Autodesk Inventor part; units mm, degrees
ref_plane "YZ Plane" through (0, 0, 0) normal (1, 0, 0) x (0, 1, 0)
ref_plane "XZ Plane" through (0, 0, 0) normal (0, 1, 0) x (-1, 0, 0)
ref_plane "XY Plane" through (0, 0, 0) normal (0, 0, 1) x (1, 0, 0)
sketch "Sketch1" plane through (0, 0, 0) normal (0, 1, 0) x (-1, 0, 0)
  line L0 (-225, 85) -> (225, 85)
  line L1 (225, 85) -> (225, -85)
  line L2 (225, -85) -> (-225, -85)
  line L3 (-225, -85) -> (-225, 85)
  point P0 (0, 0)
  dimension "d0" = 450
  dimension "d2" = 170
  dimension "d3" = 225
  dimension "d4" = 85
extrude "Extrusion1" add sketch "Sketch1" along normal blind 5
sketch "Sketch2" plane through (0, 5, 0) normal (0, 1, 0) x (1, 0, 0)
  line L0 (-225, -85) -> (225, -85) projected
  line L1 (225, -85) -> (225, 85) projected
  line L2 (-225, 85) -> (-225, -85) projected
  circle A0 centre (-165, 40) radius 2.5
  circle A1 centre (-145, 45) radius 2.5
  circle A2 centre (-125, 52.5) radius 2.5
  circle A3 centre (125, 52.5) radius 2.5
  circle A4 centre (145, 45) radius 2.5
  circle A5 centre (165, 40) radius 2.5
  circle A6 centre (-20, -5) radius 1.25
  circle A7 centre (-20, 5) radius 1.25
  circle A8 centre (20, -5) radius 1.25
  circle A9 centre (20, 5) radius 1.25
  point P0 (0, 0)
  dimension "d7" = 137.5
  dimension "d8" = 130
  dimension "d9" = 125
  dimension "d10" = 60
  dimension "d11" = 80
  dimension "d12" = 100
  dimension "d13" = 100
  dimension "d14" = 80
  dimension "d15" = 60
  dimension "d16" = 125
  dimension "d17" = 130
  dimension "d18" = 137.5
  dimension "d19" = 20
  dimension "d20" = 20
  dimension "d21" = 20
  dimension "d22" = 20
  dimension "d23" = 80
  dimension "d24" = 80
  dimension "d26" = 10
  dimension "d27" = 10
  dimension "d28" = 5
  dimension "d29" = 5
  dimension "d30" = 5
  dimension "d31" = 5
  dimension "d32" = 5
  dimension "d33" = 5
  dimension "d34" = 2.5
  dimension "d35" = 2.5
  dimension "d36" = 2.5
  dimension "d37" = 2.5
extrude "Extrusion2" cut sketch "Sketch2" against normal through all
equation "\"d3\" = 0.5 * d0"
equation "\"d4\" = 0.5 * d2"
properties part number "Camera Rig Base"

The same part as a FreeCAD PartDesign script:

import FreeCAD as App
import Part
import Sketcher
Q = App.Units.Quantity

doc = App.newDocument("Part")
params = doc.addObject("Spreadsheet::Sheet", "Params")
for row, (alias, value) in enumerate([
    ("sketch1_width", "450 mm"),
    ("sketch1_height", "170 mm"),
    ("pad1_length", "5 mm"),
    ("sketch2_diameter", "5 mm"),
    ("sketch2_diameter2", "2.5 mm"),
], start=1):
    params.set(f"A{row}", alias)
    params.set(f"B{row}", "=" + value)
    params.setAlias(f"B{row}", alias)

body = doc.addObject("PartDesign::Body", "Body")

sketch1 = body.newObject("Sketcher::SketchObject", "Sketch")
sketch1.AttachmentSupport = (doc.getObject("XZ_Plane"), [""])
sketch1.MapMode = "FlatFace"
sketch1.addGeometry([
    Part.LineSegment(App.Vector(-225, 85, 0), App.Vector(225, 85, 0)),
    Part.LineSegment(App.Vector(225, 85, 0), App.Vector(225, -85, 0)),
    Part.LineSegment(App.Vector(225, -85, 0), App.Vector(-225, -85, 0)),
    Part.LineSegment(App.Vector(-225, -85, 0), App.Vector(-225, 85, 0)),
], False)
sketch1.addConstraint([
    Sketcher.Constraint("Coincident", 0, 2, 1, 1),
    Sketcher.Constraint("Coincident", 1, 2, 2, 1),
    Sketcher.Constraint("Coincident", 2, 2, 3, 1),
    Sketcher.Constraint("Coincident", 3, 2, 0, 1),
    Sketcher.Constraint("Horizontal", 0),
    Sketcher.Constraint("Vertical", 1),
    Sketcher.Constraint("Horizontal", 2),
    Sketcher.Constraint("Vertical", 3),
    Sketcher.Constraint("Symmetric", 0, 2, 2, 2, -1, 1),
    Sketcher.Constraint("DistanceX", 0, 1, 0, 2, Q("450 mm")),
    Sketcher.Constraint("DistanceY", 1, 2, 1, 1, Q("170 mm")),
])
sketch1.setExpression("Constraints[9]", "Params.sketch1_width")
sketch1.setExpression("Constraints[10]", "Params.sketch1_height")
pad1 = body.newObject("PartDesign::Pad", "Pad")
pad1.Profile = sketch1
pad1.setExpression("Length", "Params.pad1_length")
pad1.Reversed = True

sketch2 = body.newObject("Sketcher::SketchObject", "Sketch001")
sketch2.AttachmentSupport = (doc.getObject("XZ_Plane"), [""])
sketch2.MapMode = "FlatFace"
sketch2.AttachmentOffset = App.Placement(App.Vector(0, 0, -5), App.Rotation())
sketch2.addGeometry([
    Part.Circle(App.Vector(-165, -40, 0), App.Vector(0, 0, 1), 2.5),
    Part.Circle(App.Vector(-145, -45, 0), App.Vector(0, 0, 1), 2.5),
    Part.Circle(App.Vector(-125, -52.5, 0), App.Vector(0, 0, 1), 2.5),
    Part.Circle(App.Vector(125, -52.5, 0), App.Vector(0, 0, 1), 2.5),
    Part.Circle(App.Vector(145, -45, 0), App.Vector(0, 0, 1), 2.5),
    Part.Circle(App.Vector(165, -40, 0), App.Vector(0, 0, 1), 2.5),
    Part.Circle(App.Vector(-20, 5, 0), App.Vector(0, 0, 1), 1.2),
    Part.Circle(App.Vector(-20, -5, 0), App.Vector(0, 0, 1), 1.2),
    Part.Circle(App.Vector(20, 5, 0), App.Vector(0, 0, 1), 1.2),
    Part.Circle(App.Vector(20, -5, 0), App.Vector(0, 0, 1), 1.2),
], False)
sketch2.addConstraint([
    Sketcher.Constraint("Equal", 0, 1),
    Sketcher.Constraint("Equal", 1, 2),
    Sketcher.Constraint("Equal", 2, 3),
    Sketcher.Constraint("Equal", 3, 4),
    Sketcher.Constraint("Equal", 4, 5),
    Sketcher.Constraint("Equal", 6, 7),
    Sketcher.Constraint("Equal", 7, 8),
    Sketcher.Constraint("Equal", 8, 9),
    Sketcher.Constraint("Symmetric", 7, 3, 8, 3, -1, 1),
    Sketcher.Constraint("Symmetric", 6, 3, 9, 3, -1, 1),
    Sketcher.Constraint("Symmetric", 2, 3, 3, 3, -2),
    Sketcher.Constraint("Symmetric", 1, 3, 4, 3, -2),
    Sketcher.Constraint("Symmetric", 0, 3, 5, 3, -2),
    Sketcher.Constraint("Symmetric", 6, 3, 8, 3, -2),
    Sketcher.Constraint("Diameter", 0, Q("5 mm")),
    Sketcher.Constraint("Diameter", 6, Q("2.5 mm")),
    Sketcher.Constraint("DistanceX", 2, 3, -1, 1, Q("125 mm")),
    Sketcher.Constraint("DistanceX", 6, 3, -1, 1, Q("20 mm")),
    Sketcher.Constraint("DistanceY", -1, 1, 6, 3, Q("5 mm")),
    Sketcher.Constraint("DistanceX", 0, 3, 1, 3, Q("20 mm")),
    Sketcher.Constraint("DistanceY", 1, 3, 0, 3, Q("5 mm")),
    Sketcher.Constraint("DistanceX", 1, 3, 2, 3, Q("20 mm")),
    Sketcher.Constraint("DistanceY", 0, 3, -1, 1, Q("40 mm")),
    Sketcher.Constraint("DistanceY", 2, 3, -1, 1, Q("52.5 mm")),
])
sketch2.setExpression("Constraints[14]", "Params.sketch2_diameter")
sketch2.setExpression("Constraints[15]", "Params.sketch2_diameter2")
pocket1 = body.newObject("PartDesign::Pocket", "Pocket")
pocket1.Profile = sketch2
pocket1.Type = "ThroughAll"
pocket1.Reversed = True

doc.recompute()
